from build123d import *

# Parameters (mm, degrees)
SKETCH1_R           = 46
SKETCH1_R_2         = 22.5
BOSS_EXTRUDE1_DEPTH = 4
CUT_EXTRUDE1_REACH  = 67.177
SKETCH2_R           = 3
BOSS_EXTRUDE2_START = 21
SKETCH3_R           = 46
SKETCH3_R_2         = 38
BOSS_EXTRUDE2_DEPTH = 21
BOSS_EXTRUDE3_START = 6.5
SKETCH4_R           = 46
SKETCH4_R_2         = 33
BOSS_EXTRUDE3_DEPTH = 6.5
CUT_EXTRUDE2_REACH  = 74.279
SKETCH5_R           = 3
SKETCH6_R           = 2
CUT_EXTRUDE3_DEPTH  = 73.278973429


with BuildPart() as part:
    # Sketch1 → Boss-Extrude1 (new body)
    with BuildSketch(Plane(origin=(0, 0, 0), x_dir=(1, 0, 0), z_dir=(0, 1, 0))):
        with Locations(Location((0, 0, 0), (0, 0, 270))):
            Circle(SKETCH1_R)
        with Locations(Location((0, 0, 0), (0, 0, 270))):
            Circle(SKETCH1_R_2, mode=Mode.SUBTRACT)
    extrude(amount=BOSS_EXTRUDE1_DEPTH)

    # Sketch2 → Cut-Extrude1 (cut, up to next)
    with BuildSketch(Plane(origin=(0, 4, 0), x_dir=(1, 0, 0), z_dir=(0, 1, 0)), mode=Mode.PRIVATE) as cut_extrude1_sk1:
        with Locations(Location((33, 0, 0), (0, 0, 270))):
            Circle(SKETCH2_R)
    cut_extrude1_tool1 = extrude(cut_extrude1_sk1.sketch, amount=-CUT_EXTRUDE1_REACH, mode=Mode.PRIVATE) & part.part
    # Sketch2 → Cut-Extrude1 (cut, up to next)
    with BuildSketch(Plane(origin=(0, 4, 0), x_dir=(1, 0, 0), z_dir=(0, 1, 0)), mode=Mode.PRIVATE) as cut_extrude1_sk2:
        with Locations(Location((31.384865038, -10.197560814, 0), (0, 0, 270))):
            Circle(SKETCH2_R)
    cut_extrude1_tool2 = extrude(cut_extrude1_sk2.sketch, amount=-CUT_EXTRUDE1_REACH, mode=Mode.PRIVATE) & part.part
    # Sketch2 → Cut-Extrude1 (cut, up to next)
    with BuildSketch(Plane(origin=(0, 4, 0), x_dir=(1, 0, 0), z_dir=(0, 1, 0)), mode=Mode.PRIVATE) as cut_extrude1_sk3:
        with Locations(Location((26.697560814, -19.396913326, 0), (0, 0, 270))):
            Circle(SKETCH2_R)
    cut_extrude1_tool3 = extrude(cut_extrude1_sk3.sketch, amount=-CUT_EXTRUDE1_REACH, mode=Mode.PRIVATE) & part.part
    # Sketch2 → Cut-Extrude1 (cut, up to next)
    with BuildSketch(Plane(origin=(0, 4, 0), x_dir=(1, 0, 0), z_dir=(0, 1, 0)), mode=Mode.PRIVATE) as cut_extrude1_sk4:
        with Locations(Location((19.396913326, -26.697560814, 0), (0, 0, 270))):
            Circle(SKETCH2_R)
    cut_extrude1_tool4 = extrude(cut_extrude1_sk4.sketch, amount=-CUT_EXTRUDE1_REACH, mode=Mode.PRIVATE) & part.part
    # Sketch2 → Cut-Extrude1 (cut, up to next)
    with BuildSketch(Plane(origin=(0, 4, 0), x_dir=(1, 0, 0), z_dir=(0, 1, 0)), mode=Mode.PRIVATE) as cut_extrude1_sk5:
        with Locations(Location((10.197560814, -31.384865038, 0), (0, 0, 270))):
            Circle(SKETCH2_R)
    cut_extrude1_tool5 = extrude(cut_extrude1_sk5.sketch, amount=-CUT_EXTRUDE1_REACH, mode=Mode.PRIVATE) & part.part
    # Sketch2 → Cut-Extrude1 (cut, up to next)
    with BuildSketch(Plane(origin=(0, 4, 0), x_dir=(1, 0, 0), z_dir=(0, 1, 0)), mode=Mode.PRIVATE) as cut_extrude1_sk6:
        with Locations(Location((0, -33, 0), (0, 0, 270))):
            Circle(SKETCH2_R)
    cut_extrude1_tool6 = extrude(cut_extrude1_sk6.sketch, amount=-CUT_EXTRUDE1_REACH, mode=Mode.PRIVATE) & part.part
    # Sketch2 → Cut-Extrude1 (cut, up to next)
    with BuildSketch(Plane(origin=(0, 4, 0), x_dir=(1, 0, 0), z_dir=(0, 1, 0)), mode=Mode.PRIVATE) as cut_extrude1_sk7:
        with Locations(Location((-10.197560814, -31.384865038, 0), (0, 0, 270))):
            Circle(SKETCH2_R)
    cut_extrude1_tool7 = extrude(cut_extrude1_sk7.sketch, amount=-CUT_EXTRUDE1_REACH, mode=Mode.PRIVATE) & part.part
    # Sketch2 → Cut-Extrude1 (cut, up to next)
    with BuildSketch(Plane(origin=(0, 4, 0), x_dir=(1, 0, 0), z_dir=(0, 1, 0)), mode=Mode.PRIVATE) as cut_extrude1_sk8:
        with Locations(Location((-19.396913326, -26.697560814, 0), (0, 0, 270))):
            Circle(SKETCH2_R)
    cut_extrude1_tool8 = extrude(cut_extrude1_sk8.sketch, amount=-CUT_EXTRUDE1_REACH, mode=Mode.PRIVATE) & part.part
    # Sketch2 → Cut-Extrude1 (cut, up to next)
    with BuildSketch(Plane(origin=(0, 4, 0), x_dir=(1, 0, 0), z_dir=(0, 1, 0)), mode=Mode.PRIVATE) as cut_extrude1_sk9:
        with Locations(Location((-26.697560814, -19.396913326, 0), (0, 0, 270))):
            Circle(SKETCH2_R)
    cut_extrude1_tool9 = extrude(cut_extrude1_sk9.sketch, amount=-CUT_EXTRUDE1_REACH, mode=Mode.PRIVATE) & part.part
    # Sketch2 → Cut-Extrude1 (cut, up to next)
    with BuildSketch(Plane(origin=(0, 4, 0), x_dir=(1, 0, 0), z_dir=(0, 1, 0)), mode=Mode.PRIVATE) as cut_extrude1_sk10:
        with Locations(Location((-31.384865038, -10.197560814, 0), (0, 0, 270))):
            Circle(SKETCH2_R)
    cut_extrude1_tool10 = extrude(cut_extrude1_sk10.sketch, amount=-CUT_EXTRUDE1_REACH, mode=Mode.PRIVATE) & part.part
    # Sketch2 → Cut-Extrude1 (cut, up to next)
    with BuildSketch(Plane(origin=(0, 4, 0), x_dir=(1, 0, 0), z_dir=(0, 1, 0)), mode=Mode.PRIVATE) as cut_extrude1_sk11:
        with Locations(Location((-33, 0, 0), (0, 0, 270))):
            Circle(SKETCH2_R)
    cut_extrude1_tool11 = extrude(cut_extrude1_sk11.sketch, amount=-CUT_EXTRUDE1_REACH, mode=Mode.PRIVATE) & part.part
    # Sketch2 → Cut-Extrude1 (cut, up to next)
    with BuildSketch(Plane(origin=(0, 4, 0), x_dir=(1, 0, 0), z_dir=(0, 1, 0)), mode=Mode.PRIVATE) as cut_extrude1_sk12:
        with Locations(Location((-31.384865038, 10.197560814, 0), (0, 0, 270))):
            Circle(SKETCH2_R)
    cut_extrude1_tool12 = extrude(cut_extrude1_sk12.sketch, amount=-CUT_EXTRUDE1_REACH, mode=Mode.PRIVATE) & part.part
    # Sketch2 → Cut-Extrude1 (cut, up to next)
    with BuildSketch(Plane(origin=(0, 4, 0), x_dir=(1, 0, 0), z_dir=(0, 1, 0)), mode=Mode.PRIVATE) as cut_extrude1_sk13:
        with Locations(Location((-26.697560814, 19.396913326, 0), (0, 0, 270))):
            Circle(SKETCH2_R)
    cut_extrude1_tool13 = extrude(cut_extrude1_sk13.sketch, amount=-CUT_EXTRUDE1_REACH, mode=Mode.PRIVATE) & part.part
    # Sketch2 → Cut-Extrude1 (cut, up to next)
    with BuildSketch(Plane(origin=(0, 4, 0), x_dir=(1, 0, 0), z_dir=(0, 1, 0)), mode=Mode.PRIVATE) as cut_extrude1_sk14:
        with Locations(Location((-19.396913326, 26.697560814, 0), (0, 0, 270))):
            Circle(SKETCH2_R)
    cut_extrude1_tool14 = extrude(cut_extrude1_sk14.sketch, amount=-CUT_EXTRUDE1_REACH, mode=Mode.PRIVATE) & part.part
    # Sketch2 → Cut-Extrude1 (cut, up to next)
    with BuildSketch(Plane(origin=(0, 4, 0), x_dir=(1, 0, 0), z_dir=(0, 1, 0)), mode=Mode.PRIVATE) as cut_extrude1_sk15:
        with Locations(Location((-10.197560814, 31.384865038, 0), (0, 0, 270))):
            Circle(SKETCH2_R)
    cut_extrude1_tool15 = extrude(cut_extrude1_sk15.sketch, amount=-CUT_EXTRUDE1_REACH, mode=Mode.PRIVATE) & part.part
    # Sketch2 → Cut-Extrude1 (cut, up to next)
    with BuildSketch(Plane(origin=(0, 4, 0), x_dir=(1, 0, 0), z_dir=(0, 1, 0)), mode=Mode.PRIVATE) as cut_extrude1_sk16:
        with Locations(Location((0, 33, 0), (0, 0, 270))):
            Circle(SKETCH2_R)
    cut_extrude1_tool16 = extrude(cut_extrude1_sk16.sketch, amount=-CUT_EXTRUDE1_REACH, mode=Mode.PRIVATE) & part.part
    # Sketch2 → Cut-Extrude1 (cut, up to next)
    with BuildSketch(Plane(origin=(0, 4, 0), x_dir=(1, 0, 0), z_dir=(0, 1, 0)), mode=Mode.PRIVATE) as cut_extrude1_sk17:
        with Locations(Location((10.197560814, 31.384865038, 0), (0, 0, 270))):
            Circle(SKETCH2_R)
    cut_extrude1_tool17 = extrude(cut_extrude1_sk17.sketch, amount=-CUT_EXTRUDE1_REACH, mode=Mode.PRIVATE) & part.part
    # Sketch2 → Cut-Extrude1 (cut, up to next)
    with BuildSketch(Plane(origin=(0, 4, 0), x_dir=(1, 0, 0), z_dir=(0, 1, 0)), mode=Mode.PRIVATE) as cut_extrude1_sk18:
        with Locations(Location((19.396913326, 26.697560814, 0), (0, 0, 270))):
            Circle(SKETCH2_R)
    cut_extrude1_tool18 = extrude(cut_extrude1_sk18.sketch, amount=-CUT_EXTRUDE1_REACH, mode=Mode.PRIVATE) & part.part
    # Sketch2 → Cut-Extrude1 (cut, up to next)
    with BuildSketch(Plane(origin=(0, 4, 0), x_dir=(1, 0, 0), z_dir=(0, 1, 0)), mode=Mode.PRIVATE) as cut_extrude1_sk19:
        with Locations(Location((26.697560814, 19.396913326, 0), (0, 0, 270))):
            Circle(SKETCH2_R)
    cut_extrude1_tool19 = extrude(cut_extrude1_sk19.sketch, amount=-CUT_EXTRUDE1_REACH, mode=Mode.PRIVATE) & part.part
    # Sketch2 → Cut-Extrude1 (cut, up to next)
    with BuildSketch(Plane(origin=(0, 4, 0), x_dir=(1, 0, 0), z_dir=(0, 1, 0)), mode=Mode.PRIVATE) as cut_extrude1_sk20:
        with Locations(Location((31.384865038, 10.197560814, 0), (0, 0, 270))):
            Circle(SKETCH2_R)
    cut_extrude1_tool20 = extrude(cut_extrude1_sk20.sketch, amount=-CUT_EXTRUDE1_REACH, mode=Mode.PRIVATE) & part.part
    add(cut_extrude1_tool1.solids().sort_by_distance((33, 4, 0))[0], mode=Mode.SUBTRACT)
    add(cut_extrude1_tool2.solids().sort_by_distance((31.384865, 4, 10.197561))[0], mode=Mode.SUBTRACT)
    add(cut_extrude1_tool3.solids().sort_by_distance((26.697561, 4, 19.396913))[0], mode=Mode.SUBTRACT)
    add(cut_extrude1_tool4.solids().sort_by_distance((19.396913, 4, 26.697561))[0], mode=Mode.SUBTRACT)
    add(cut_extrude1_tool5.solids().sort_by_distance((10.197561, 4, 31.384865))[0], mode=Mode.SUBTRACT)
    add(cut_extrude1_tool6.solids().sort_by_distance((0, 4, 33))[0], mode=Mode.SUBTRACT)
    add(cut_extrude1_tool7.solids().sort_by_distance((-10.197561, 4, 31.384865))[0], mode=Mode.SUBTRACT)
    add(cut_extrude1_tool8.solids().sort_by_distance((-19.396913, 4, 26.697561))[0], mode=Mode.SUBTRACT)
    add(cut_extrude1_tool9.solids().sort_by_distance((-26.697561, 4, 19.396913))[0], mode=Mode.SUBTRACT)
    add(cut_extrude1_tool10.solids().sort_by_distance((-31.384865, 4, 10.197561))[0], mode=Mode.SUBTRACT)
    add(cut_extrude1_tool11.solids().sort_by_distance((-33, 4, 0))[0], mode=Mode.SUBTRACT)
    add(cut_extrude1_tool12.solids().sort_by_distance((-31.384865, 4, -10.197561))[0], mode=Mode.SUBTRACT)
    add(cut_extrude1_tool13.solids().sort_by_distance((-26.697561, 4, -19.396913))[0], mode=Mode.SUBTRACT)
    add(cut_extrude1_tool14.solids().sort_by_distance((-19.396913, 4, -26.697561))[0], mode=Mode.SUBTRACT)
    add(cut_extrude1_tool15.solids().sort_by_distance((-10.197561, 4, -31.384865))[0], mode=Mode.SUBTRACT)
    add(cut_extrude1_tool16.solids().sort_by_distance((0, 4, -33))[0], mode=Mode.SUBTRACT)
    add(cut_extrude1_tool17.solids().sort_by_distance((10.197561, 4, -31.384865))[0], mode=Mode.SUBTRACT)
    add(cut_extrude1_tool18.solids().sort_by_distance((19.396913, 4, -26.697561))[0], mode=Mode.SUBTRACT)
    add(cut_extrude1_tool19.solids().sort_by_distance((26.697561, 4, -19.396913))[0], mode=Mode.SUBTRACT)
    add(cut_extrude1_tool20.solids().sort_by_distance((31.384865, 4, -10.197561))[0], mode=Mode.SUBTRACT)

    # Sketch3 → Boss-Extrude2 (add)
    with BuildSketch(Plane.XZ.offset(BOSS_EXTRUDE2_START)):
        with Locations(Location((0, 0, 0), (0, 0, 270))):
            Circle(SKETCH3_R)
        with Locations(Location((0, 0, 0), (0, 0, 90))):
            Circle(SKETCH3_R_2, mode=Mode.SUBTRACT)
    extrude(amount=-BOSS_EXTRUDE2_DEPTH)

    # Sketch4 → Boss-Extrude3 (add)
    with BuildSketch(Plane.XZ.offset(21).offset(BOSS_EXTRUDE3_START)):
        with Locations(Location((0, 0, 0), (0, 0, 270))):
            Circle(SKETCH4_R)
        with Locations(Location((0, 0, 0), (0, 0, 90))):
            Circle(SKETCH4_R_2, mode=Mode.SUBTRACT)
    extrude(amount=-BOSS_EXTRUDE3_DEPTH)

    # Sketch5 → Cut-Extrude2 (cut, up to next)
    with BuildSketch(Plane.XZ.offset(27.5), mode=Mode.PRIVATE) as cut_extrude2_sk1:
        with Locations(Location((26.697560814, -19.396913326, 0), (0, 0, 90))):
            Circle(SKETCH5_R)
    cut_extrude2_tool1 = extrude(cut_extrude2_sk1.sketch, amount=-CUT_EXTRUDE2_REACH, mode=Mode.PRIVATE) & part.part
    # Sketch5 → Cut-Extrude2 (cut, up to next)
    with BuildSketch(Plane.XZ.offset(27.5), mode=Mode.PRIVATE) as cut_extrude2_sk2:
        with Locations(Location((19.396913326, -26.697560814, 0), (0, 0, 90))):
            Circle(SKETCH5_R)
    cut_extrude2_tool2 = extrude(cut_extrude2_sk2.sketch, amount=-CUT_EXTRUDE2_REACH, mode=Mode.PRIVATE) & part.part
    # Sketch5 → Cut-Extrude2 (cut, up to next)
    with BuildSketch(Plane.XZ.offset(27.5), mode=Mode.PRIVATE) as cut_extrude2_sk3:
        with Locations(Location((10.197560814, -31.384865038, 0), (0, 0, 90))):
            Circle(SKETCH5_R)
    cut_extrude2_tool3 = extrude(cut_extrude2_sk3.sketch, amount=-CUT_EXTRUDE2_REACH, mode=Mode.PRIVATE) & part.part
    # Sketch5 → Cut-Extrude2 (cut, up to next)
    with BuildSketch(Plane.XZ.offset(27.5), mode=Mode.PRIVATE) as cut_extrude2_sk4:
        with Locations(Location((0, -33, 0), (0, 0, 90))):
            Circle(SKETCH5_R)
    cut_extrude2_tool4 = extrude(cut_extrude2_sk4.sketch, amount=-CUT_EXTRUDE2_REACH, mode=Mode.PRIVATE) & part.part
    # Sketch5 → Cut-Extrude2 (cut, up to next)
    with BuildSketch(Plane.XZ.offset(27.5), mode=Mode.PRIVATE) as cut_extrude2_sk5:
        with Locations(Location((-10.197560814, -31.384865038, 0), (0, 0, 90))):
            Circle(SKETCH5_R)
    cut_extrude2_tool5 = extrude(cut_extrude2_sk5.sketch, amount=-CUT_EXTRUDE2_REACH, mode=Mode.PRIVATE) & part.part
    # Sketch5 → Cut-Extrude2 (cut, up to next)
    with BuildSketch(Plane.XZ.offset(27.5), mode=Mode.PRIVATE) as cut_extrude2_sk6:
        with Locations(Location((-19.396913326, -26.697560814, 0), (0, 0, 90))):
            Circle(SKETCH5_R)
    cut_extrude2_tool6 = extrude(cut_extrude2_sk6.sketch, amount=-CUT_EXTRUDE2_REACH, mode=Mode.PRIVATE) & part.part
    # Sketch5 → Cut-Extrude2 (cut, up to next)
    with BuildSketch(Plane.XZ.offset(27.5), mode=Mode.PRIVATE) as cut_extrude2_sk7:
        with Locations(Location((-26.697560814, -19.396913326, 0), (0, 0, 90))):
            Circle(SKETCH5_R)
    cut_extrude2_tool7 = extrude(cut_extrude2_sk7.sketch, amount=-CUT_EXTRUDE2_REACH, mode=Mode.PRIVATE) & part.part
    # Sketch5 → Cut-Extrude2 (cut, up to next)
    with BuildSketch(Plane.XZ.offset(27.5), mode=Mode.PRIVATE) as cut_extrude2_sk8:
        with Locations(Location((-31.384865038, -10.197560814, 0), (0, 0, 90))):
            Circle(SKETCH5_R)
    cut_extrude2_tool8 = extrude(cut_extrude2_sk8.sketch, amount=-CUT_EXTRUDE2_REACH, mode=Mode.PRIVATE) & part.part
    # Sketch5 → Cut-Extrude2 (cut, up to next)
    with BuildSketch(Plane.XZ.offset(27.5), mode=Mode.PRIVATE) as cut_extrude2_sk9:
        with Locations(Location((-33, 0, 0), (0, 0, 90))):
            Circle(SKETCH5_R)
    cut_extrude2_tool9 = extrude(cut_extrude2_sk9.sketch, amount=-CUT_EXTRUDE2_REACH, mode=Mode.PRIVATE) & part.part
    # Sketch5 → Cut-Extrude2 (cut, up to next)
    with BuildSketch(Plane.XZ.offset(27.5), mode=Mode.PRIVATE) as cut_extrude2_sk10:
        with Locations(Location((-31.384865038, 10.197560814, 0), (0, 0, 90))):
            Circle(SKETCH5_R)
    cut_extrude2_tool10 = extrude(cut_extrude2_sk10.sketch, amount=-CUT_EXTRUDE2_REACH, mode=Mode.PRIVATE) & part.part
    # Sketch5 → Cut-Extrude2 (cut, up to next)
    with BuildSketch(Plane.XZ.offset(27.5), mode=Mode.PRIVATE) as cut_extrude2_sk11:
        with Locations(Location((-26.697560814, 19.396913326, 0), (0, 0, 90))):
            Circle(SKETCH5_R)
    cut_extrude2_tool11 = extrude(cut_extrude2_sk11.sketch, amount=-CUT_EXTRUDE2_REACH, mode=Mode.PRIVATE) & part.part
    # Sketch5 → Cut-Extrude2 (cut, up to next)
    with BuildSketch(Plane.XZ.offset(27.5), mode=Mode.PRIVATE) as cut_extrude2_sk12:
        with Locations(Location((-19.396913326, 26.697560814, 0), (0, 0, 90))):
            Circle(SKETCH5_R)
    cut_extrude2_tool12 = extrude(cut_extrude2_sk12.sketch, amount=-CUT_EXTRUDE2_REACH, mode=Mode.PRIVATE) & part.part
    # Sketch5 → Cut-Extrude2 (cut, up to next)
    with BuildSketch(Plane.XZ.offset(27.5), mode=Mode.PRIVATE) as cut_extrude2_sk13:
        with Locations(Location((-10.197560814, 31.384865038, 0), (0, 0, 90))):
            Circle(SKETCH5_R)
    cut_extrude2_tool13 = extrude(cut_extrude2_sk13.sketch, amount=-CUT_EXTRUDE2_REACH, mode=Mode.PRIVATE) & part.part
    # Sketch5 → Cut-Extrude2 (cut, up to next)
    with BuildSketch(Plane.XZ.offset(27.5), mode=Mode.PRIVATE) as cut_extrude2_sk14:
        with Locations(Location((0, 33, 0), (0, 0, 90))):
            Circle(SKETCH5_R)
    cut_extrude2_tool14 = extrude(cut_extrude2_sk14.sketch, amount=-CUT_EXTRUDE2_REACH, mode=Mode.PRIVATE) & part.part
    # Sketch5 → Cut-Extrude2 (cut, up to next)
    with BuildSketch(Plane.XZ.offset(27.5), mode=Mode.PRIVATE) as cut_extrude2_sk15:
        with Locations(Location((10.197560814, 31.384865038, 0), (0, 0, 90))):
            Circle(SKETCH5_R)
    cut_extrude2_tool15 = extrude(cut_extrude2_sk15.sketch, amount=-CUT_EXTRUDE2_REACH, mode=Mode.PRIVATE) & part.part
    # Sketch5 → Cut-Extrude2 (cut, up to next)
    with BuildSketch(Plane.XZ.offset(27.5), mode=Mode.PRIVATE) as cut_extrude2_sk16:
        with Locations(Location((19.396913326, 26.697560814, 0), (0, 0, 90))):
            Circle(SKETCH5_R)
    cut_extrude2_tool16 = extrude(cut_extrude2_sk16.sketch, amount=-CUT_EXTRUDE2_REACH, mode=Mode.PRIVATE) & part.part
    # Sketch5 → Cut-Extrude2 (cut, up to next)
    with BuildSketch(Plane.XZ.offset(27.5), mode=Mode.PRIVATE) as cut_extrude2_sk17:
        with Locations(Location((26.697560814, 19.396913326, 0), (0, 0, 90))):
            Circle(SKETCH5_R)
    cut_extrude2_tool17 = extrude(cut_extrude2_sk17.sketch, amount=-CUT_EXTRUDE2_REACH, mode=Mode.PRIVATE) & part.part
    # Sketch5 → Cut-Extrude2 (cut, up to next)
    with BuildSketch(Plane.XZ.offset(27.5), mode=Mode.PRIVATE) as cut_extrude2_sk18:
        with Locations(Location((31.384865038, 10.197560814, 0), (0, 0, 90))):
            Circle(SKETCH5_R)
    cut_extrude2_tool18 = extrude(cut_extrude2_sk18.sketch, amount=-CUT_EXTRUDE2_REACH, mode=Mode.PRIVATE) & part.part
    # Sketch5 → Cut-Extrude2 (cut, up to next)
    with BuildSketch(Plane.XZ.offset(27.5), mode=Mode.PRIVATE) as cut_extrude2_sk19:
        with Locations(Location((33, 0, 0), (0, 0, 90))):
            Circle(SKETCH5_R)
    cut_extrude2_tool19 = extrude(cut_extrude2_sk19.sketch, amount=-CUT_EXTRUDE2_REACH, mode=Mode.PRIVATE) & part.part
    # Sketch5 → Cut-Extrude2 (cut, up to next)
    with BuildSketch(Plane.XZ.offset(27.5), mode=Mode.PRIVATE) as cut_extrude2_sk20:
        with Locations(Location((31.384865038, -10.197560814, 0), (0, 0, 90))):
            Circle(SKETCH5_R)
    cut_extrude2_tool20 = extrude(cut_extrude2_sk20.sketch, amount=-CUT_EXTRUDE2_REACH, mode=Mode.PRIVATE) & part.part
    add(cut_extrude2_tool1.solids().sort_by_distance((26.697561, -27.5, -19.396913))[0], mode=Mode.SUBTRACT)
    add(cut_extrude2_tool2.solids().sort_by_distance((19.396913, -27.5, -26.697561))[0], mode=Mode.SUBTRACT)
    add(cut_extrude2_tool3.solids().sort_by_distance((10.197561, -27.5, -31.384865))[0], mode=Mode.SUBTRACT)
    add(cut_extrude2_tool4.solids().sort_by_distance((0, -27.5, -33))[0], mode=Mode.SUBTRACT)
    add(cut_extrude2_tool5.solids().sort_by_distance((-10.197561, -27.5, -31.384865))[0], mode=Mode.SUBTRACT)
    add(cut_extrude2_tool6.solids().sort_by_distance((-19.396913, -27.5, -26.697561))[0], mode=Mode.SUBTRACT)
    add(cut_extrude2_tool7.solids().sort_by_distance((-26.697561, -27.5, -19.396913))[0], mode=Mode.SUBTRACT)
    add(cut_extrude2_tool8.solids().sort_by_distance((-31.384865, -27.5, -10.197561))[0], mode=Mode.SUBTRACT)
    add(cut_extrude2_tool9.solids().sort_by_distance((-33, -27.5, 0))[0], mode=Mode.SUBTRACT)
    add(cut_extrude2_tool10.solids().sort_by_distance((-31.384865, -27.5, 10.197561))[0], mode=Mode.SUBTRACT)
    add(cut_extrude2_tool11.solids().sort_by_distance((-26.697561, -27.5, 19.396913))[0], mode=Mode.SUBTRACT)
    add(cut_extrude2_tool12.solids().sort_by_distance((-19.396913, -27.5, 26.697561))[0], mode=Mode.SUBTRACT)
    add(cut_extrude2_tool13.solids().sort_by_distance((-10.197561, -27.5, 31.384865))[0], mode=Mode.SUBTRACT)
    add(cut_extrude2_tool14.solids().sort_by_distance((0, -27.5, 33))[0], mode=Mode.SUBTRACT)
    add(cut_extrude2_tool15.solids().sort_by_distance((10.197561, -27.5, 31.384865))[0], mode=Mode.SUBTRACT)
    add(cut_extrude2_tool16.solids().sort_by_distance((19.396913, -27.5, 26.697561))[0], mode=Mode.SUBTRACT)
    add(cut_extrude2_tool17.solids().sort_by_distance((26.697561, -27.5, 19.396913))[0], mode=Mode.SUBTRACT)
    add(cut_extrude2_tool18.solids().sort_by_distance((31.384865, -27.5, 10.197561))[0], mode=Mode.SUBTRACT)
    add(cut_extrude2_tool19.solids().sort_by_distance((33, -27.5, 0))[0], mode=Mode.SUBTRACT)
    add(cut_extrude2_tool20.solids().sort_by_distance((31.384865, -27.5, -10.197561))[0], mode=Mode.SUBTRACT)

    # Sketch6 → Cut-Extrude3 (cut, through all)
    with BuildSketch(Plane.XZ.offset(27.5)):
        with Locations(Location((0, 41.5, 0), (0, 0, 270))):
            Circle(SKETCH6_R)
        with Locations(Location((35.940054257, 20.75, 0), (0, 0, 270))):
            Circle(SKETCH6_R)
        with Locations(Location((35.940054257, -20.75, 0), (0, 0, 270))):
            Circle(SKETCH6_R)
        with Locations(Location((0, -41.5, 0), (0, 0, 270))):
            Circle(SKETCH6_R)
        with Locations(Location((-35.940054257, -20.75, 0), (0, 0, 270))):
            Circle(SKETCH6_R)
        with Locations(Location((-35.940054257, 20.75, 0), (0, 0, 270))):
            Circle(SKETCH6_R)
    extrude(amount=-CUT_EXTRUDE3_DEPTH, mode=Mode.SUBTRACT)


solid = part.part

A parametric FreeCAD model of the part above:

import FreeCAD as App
import Part
import Sketcher
Q = App.Units.Quantity

doc = App.newDocument("Part")
body = doc.addObject("PartDesign::Body", "Body")

# Sketch on XZ plane
sketch1 = body.newObject("Sketcher::SketchObject", "Sketch")
sketch1.AttachmentSupport = (doc.getObject("XZ_Plane"), [""])
sketch1.MapMode = "FlatFace"
sketch1.addGeometry(Part.Circle(App.Vector(0, 0, 0), App.Vector(0, 0, 1), 46), False)
sketch1.addGeometry(Part.Circle(App.Vector(0, 0, 0), App.Vector(0, 0, 1), 22), False)
sketch1.addConstraint(Sketcher.Constraint("Coincident", 0, 3, -1, 1))
sketch1.addConstraint(Sketcher.Constraint("Coincident", 1, 3, -1, 1))
sketch1.addConstraint(Sketcher.Constraint("Diameter", 0, Q("92 mm")))
sketch1.addConstraint(Sketcher.Constraint("Diameter", 1, Q("45 mm")))
pad1 = body.newObject("PartDesign::Pad", "Pad")
pad1.Profile = sketch1
pad1.Length = 4
pad1.Reversed = True

# Sketch on XZ plane
sketch2 = body.newObject("Sketcher::SketchObject", "Sketch001")
sketch2.AttachmentSupport = (doc.getObject("XZ_Plane"), [""])
sketch2.MapMode = "FlatFace"
sketch2.AttachmentOffset = App.Placement(App.Vector(0, 0, -4), App.Rotation())
sketch2.addGeometry(Part.Circle(App.Vector(33, 0, 0), App.Vector(0, 0, 1), 3), False)
sketch2.addConstraint(Sketcher.Constraint("PointOnObject", 0, 3, -1))
sketch2.addConstraint(Sketcher.Constraint("Diameter", 0, Q("6 mm")))
sketch2.addConstraint(Sketcher.Constraint("DistanceX", -1, 1, 0, 3, Q("33 mm")))
pocket1 = body.newObject("PartDesign::Pocket", "Pocket")
pocket1.Profile = sketch2
pocket1.Type = "UpToFirst"
pocket1.Reversed = True

# Sketch on XZ plane
sketch3 = body.newObject("Sketcher::SketchObject", "Sketch002")
sketch3.AttachmentSupport = (doc.getObject("XZ_Plane"), [""])
sketch3.MapMode = "FlatFace"
sketch3.AttachmentOffset = App.Placement(App.Vector(0, 0, -4), App.Rotation())
sketch3.addGeometry(Part.Circle(App.Vector(31.4, 10.2, 0), App.Vector(0, 0, 1), 3), False)
sketch3.addConstraint(Sketcher.Constraint("Diameter", 0, Q("6 mm")))
sketch3.addConstraint(Sketcher.Constraint("DistanceY", -1, 1, 0, 3, Q("10.197561 mm")))
sketch3.addConstraint(Sketcher.Constraint("DistanceX", -1, 1, 0, 3, Q("31.384865 mm")))
pocket2 = body.newObject("PartDesign::Pocket", "Pocket001")
pocket2.Profile = sketch3
pocket2.Type = "UpToFirst"
pocket2.Reversed = True

# Sketch on XZ plane
sketch4 = body.newObject("Sketcher::SketchObject", "Sketch003")
sketch4.AttachmentSupport = (doc.getObject("XZ_Plane"), [""])
sketch4.MapMode = "FlatFace"
sketch4.AttachmentOffset = App.Placement(App.Vector(0, 0, -4), App.Rotation())
sketch4.addGeometry(Part.Circle(App.Vector(26.7, 19.4, 0), App.Vector(0, 0, 1), 3), False)
sketch4.addConstraint(Sketcher.Constraint("Diameter", 0, Q("6 mm")))
sketch4.addConstraint(Sketcher.Constraint("DistanceX", -1, 1, 0, 3, Q("26.697561 mm")))
sketch4.addConstraint(Sketcher.Constraint("DistanceY", -1, 1, 0, 3, Q("19.396913 mm")))
pocket3 = body.newObject("PartDesign::Pocket", "Pocket002")
pocket3.Profile = sketch4
pocket3.Type = "UpToFirst"
pocket3.Reversed = True

# Sketch on XZ plane
sketch5 = body.newObject("Sketcher::SketchObject", "Sketch004")
sketch5.AttachmentSupport = (doc.getObject("XZ_Plane"), [""])
sketch5.MapMode = "FlatFace"
sketch5.AttachmentOffset = App.Placement(App.Vector(0, 0, -4), App.Rotation())
sketch5.addGeometry(Part.Circle(App.Vector(19.4, 26.7, 0), App.Vector(0, 0, 1), 3), False)
sketch5.addConstraint(Sketcher.Constraint("Diameter", 0, Q("6 mm")))
sketch5.addConstraint(Sketcher.Constraint("DistanceY", -1, 1, 0, 3, Q("26.697561 mm")))
sketch5.addConstraint(Sketcher.Constraint("DistanceX", -1, 1, 0, 3, Q("19.396913 mm")))
pocket4 = body.newObject("PartDesign::Pocket", "Pocket003")
pocket4.Profile = sketch5
pocket4.Type = "UpToFirst"
pocket4.Reversed = True

# Sketch on XZ plane
sketch6 = body.newObject("Sketcher::SketchObject", "Sketch005")
sketch6.AttachmentSupport = (doc.getObject("XZ_Plane"), [""])
sketch6.MapMode = "FlatFace"
sketch6.AttachmentOffset = App.Placement(App.Vector(0, 0, -4), App.Rotation())
sketch6.addGeometry(Part.Circle(App.Vector(10.2, 31.4, 0), App.Vector(0, 0, 1), 3), False)
sketch6.addConstraint(Sketcher.Constraint("Diameter", 0, Q("6 mm")))
sketch6.addConstraint(Sketcher.Constraint("DistanceX", -1, 1, 0, 3, Q("10.197561 mm")))
sketch6.addConstraint(Sketcher.Constraint("DistanceY", -1, 1, 0, 3, Q("31.384865 mm")))
pocket5 = body.newObject("PartDesign::Pocket", "Pocket004")
pocket5.Profile = sketch6
pocket5.Type = "UpToFirst"
pocket5.Reversed = True

# Sketch on XZ plane
sketch7 = body.newObject("Sketcher::SketchObject", "Sketch006")
sketch7.AttachmentSupport = (doc.getObject("XZ_Plane"), [""])
sketch7.MapMode = "FlatFace"
sketch7.AttachmentOffset = App.Placement(App.Vector(0, 0, -4), App.Rotation())
sketch7.addGeometry(Part.Circle(App.Vector(0, 33, 0), App.Vector(0, 0, 1), 3), False)
sketch7.addConstraint(Sketcher.Constraint("PointOnObject", 0, 3, -2))
sketch7.addConstraint(Sketcher.Constraint("Diameter", 0, Q("6 mm")))
sketch7.addConstraint(Sketcher.Constraint("DistanceY", -1, 1, 0, 3, Q("33 mm")))
pocket6 = body.newObject("PartDesign::Pocket", "Pocket005")
pocket6.Profile = sketch7
pocket6.Type = "UpToFirst"
pocket6.Reversed = True

# Sketch on XZ plane
sketch8 = body.newObject("Sketcher::SketchObject", "Sketch007")
sketch8.AttachmentSupport = (doc.getObject("XZ_Plane"), [""])
sketch8.MapMode = "FlatFace"
sketch8.AttachmentOffset = App.Placement(App.Vector(0, 0, -4), App.Rotation())
sketch8.addGeometry(Part.Circle(App.Vector(-10.2, 31.4, 0), App.Vector(0, 0, 1), 3), False)
sketch8.addConstraint(Sketcher.Constraint("Diameter", 0, Q("6 mm")))
sketch8.addConstraint(Sketcher.Constraint("DistanceX", 0, 3, -1, 1, Q("10.197561 mm")))
sketch8.addConstraint(Sketcher.Constraint("DistanceY", -1, 1, 0, 3, Q("31.384865 mm")))
pocket7 = body.newObject("PartDesign::Pocket", "Pocket006")
pocket7.Profile = sketch8
pocket7.Type = "UpToFirst"
pocket7.Reversed = True

# Sketch on XZ plane
sketch9 = body.newObject("Sketcher::SketchObject", "Sketch008")
sketch9.AttachmentSupport = (doc.getObject("XZ_Plane"), [""])
sketch9.MapMode = "FlatFace"
sketch9.AttachmentOffset = App.Placement(App.Vector(0, 0, -4), App.Rotation())
sketch9.addGeometry(Part.Circle(App.Vector(-19.4, 26.7, 0), App.Vector(0, 0, 1), 3), False)
sketch9.addConstraint(Sketcher.Constraint("Diameter", 0, Q("6 mm")))
sketch9.addConstraint(Sketcher.Constraint("DistanceY", -1, 1, 0, 3, Q("26.697561 mm")))
sketch9.addConstraint(Sketcher.Constraint("DistanceX", 0, 3, -1, 1, Q("19.396913 mm")))
pocket8 = body.newObject("PartDesign::Pocket", "Pocket007")
pocket8.Profile = sketch9
pocket8.Type = "UpToFirst"
pocket8.Reversed = True

# Sketch on XZ plane
sketch10 = body.newObject("Sketcher::SketchObject", "Sketch009")
sketch10.AttachmentSupport = (doc.getObject("XZ_Plane"), [""])
sketch10.MapMode = "FlatFace"
sketch10.AttachmentOffset = App.Placement(App.Vector(0, 0, -4), App.Rotation())
sketch10.addGeometry(Part.Circle(App.Vector(-26.7, 19.4, 0), App.Vector(0, 0, 1), 3), False)
sketch10.addConstraint(Sketcher.Constraint("Diameter", 0, Q("6 mm")))
sketch10.addConstraint(Sketcher.Constraint("DistanceX", 0, 3, -1, 1, Q("26.697561 mm")))
sketch10.addConstraint(Sketcher.Constraint("DistanceY", -1, 1, 0, 3, Q("19.396913 mm")))
pocket9 = body.newObject("PartDesign::Pocket", "Pocket008")
pocket9.Profile = sketch10
pocket9.Type = "UpToFirst"
pocket9.Reversed = True

# Sketch on XZ plane
sketch11 = body.newObject("Sketcher::SketchObject", "Sketch010")
sketch11.AttachmentSupport = (doc.getObject("XZ_Plane"), [""])
sketch11.MapMode = "FlatFace"
sketch11.AttachmentOffset = App.Placement(App.Vector(0, 0, -4), App.Rotation())
sketch11.addGeometry(Part.Circle(App.Vector(-31.4, 10.2, 0), App.Vector(0, 0, 1), 3), False)
sketch11.addConstraint(Sketcher.Constraint("Diameter", 0, Q("6 mm")))
sketch11.addConstraint(Sketcher.Constraint("DistanceY", -1, 1, 0, 3, Q("10.197561 mm")))
sketch11.addConstraint(Sketcher.Constraint("DistanceX", 0, 3, -1, 1, Q("31.384865 mm")))
pocket10 = body.newObject("PartDesign::Pocket", "Pocket009")
pocket10.Profile = sketch11
pocket10.Type = "UpToFirst"
pocket10.Reversed = True

# Sketch on XZ plane
sketch12 = body.newObject("Sketcher::SketchObject", "Sketch011")
sketch12.AttachmentSupport = (doc.getObject("XZ_Plane"), [""])
sketch12.MapMode = "FlatFace"
sketch12.AttachmentOffset = App.Placement(App.Vector(0, 0, -4), App.Rotation())
sketch12.addGeometry(Part.Circle(App.Vector(-33, 0, 0), App.Vector(0, 0, 1), 3), False)
sketch12.addConstraint(Sketcher.Constraint("PointOnObject", 0, 3, -1))
sketch12.addConstraint(Sketcher.Constraint("Diameter", 0, Q("6 mm")))
sketch12.addConstraint(Sketcher.Constraint("DistanceX", 0, 3, -1, 1, Q("33 mm")))
pocket11 = body.newObject("PartDesign::Pocket", "Pocket010")
pocket11.Profile = sketch12
pocket11.Type = "UpToFirst"
pocket11.Reversed = True

# Sketch on XZ plane
sketch13 = body.newObject("Sketcher::SketchObject", "Sketch012")
sketch13.AttachmentSupport = (doc.getObject("XZ_Plane"), [""])
sketch13.MapMode = "FlatFace"
sketch13.AttachmentOffset = App.Placement(App.Vector(0, 0, -4), App.Rotation())
sketch13.addGeometry(Part.Circle(App.Vector(-31.4, -10.2, 0), App.Vector(0, 0, 1), 3), False)
sketch13.addConstraint(Sketcher.Constraint("Diameter", 0, Q("6 mm")))
sketch13.addConstraint(Sketcher.Constraint("DistanceY", 0, 3, -1, 1, Q("10.197561 mm")))
sketch13.addConstraint(Sketcher.Constraint("DistanceX", 0, 3, -1, 1, Q("31.384865 mm")))
pocket12 = body.newObject("PartDesign::Pocket", "Pocket011")
pocket12.Profile = sketch13
pocket12.Type = "UpToFirst"
pocket12.Reversed = True

# Sketch on XZ plane
sketch14 = body.newObject("Sketcher::SketchObject", "Sketch013")
sketch14.AttachmentSupport = (doc.getObject("XZ_Plane"), [""])
sketch14.MapMode = "FlatFace"
sketch14.AttachmentOffset = App.Placement(App.Vector(0, 0, -4), App.Rotation())
sketch14.addGeometry(Part.Circle(App.Vector(-26.7, -19.4, 0), App.Vector(0, 0, 1), 3), False)
sketch14.addConstraint(Sketcher.Constraint("Diameter", 0, Q("6 mm")))
sketch14.addConstraint(Sketcher.Constraint("DistanceX", 0, 3, -1, 1, Q("26.697561 mm")))
sketch14.addConstraint(Sketcher.Constraint("DistanceY", 0, 3, -1, 1, Q("19.396913 mm")))
pocket13 = body.newObject("PartDesign::Pocket", "Pocket012")
pocket13.Profile = sketch14
pocket13.Type = "UpToFirst"
pocket13.Reversed = True

# Sketch on XZ plane
sketch15 = body.newObject("Sketcher::SketchObject", "Sketch014")
sketch15.AttachmentSupport = (doc.getObject("XZ_Plane"), [""])
sketch15.MapMode = "FlatFace"
sketch15.AttachmentOffset = App.Placement(App.Vector(0, 0, -4), App.Rotation())
sketch15.addGeometry(Part.Circle(App.Vector(-19.4, -26.7, 0), App.Vector(0, 0, 1), 3), False)
sketch15.addConstraint(Sketcher.Constraint("Diameter", 0, Q("6 mm")))
sketch15.addConstraint(Sketcher.Constraint("DistanceY", 0, 3, -1, 1, Q("26.697561 mm")))
sketch15.addConstraint(Sketcher.Constraint("DistanceX", 0, 3, -1, 1, Q("19.396913 mm")))
pocket14 = body.newObject("PartDesign::Pocket", "Pocket013")
pocket14.Profile = sketch15
pocket14.Type = "UpToFirst"
pocket14.Reversed = True

# Sketch on XZ plane
sketch16 = body.newObject("Sketcher::SketchObject", "Sketch015")
sketch16.AttachmentSupport = (doc.getObject("XZ_Plane"), [""])
sketch16.MapMode = "FlatFace"
sketch16.AttachmentOffset = App.Placement(App.Vector(0, 0, -4), App.Rotation())
sketch16.addGeometry(Part.Circle(App.Vector(-10.2, -31.4, 0), App.Vector(0, 0, 1), 3), False)
sketch16.addConstraint(Sketcher.Constraint("Diameter", 0, Q("6 mm")))
sketch16.addConstraint(Sketcher.Constraint("DistanceX", 0, 3, -1, 1, Q("10.197561 mm")))
sketch16.addConstraint(Sketcher.Constraint("DistanceY", 0, 3, -1, 1, Q("31.384865 mm")))
pocket15 = body.newObject("PartDesign::Pocket", "Pocket014")
pocket15.Profile = sketch16
pocket15.Type = "UpToFirst"
pocket15.Reversed = True

# Sketch on XZ plane
sketch17 = body.newObject("Sketcher::SketchObject", "Sketch016")
sketch17.AttachmentSupport = (doc.getObject("XZ_Plane"), [""])
sketch17.MapMode = "FlatFace"
sketch17.AttachmentOffset = App.Placement(App.Vector(0, 0, -4), App.Rotation())
sketch17.addGeometry(Part.Circle(App.Vector(0, -33, 0), App.Vector(0, 0, 1), 3), False)
sketch17.addConstraint(Sketcher.Constraint("PointOnObject", 0, 3, -2))
sketch17.addConstraint(Sketcher.Constraint("Diameter", 0, Q("6 mm")))
sketch17.addConstraint(Sketcher.Constraint("DistanceY", 0, 3, -1, 1, Q("33 mm")))
pocket16 = body.newObject("PartDesign::Pocket", "Pocket015")
pocket16.Profile = sketch17
pocket16.Type = "UpToFirst"
pocket16.Reversed = True

# Sketch on XZ plane
sketch18 = body.newObject("Sketcher::SketchObject", "Sketch017")
sketch18.AttachmentSupport = (doc.getObject("XZ_Plane"), [""])
sketch18.MapMode = "FlatFace"
sketch18.AttachmentOffset = App.Placement(App.Vector(0, 0, -4), App.Rotation())
sketch18.addGeometry(Part.Circle(App.Vector(10.2, -31.4, 0), App.Vector(0, 0, 1), 3), False)
sketch18.addConstraint(Sketcher.Constraint("Diameter", 0, Q("6 mm")))
sketch18.addConstraint(Sketcher.Constraint("DistanceX", -1, 1, 0, 3, Q("10.197561 mm")))
sketch18.addConstraint(Sketcher.Constraint("DistanceY", 0, 3, -1, 1, Q("31.384865 mm")))
pocket17 = body.newObject("PartDesign::Pocket", "Pocket016")
pocket17.Profile = sketch18
pocket17.Type = "UpToFirst"
pocket17.Reversed = True

# Sketch on XZ plane
sketch19 = body.newObject("Sketcher::SketchObject", "Sketch018")
sketch19.AttachmentSupport = (doc.getObject("XZ_Plane"), [""])
sketch19.MapMode = "FlatFace"
sketch19.AttachmentOffset = App.Placement(App.Vector(0, 0, -4), App.Rotation())
sketch19.addGeometry(Part.Circle(App.Vector(19.4, -26.7, 0), App.Vector(0, 0, 1), 3), False)
sketch19.addConstraint(Sketcher.Constraint("Diameter", 0, Q("6 mm")))
sketch19.addConstraint(Sketcher.Constraint("DistanceY", 0, 3, -1, 1, Q("26.697561 mm")))
sketch19.addConstraint(Sketcher.Constraint("DistanceX", -1, 1, 0, 3, Q("19.396913 mm")))
pocket18 = body.newObject("PartDesign::Pocket", "Pocket017")
pocket18.Profile = sketch19
pocket18.Type = "UpToFirst"
pocket18.Reversed = True

# Sketch on XZ plane
sketch20 = body.newObject("Sketcher::SketchObject", "Sketch019")
sketch20.AttachmentSupport = (doc.getObject("XZ_Plane"), [""])
sketch20.MapMode = "FlatFace"
sketch20.AttachmentOffset = App.Placement(App.Vector(0, 0, -4), App.Rotation())
sketch20.addGeometry(Part.Circle(App.Vector(26.7, -19.4, 0), App.Vector(0, 0, 1), 3), False)
sketch20.addConstraint(Sketcher.Constraint("Diameter", 0, Q("6 mm")))
sketch20.addConstraint(Sketcher.Constraint("DistanceX", -1, 1, 0, 3, Q("26.697561 mm")))
sketch20.addConstraint(Sketcher.Constraint("DistanceY", 0, 3, -1, 1, Q("19.396913 mm")))
pocket19 = body.newObject("PartDesign::Pocket", "Pocket018")
pocket19.Profile = sketch20
pocket19.Type = "UpToFirst"
pocket19.Reversed = True

# Sketch on XZ plane
sketch21 = body.newObject("Sketcher::SketchObject", "Sketch020")
sketch21.AttachmentSupport = (doc.getObject("XZ_Plane"), [""])
sketch21.MapMode = "FlatFace"
sketch21.AttachmentOffset = App.Placement(App.Vector(0, 0, -4), App.Rotation())
sketch21.addGeometry(Part.Circle(App.Vector(31.4, -10.2, 0), App.Vector(0, 0, 1), 3), False)
sketch21.addConstraint(Sketcher.Constraint("Diameter", 0, Q("6 mm")))
sketch21.addConstraint(Sketcher.Constraint("DistanceY", 0, 3, -1, 1, Q("10.197561 mm")))
sketch21.addConstraint(Sketcher.Constraint("DistanceX", -1, 1, 0, 3, Q("31.384865 mm")))
pocket20 = body.newObject("PartDesign::Pocket", "Pocket019")
pocket20.Profile = sketch21
pocket20.Type = "UpToFirst"
pocket20.Reversed = True

# Sketch on XZ plane
sketch22 = body.newObject("Sketcher::SketchObject", "Sketch021")
sketch22.AttachmentSupport = (doc.getObject("XZ_Plane"), [""])
sketch22.MapMode = "FlatFace"
sketch22.AttachmentOffset = App.Placement(App.Vector(0, 0, 21), App.Rotation())
sketch22.addGeometry(Part.Circle(App.Vector(0, 0, 0), App.Vector(0, 0, 1), 46), False)
sketch22.addGeometry(Part.Circle(App.Vector(0, 0, 0), App.Vector(0, 0, 1), 38), False)
sketch22.addConstraint(Sketcher.Constraint("Coincident", 0, 3, -1, 1))
sketch22.addConstraint(Sketcher.Constraint("Coincident", 1, 3, -1, 1))
sketch22.addConstraint(Sketcher.Constraint("Diameter", 0, Q("92 mm")))
sketch22.addConstraint(Sketcher.Constraint("Diameter", 1, Q("76 mm")))
pad2 = body.newObject("PartDesign::Pad", "Pad001")
pad2.Profile = sketch22
pad2.Length = 21
pad2.Reversed = True

# Sketch on XZ plane
sketch23 = body.newObject("Sketcher::SketchObject", "Sketch022")
sketch23.AttachmentSupport = (doc.getObject("XZ_Plane"), [""])
sketch23.MapMode = "FlatFace"
sketch23.AttachmentOffset = App.Placement(App.Vector(0, 0, 27.5), App.Rotation())
sketch23.addGeometry(Part.Circle(App.Vector(0, 0, 0), App.Vector(0, 0, 1), 46), False)
sketch23.addGeometry(Part.Circle(App.Vector(0, 0, 0), App.Vector(0, 0, 1), 33), False)
sketch23.addConstraint(Sketcher.Constraint("Coincident", 0, 3, -1, 1))
sketch23.addConstraint(Sketcher.Constraint("Coincident", 1, 3, -1, 1))
sketch23.addConstraint(Sketcher.Constraint("Diameter", 0, Q("92 mm")))
sketch23.addConstraint(Sketcher.Constraint("Diameter", 1, Q("66 mm")))
pad3 = body.newObject("PartDesign::Pad", "Pad002")
pad3.Profile = sketch23
pad3.Length = 6.5
pad3.Reversed = True

# Sketch on XZ plane
sketch24 = body.newObject("Sketcher::SketchObject", "Sketch023")
sketch24.AttachmentSupport = (doc.getObject("XZ_Plane"), [""])
sketch24.MapMode = "FlatFace"
sketch24.AttachmentOffset = App.Placement(App.Vector(0, 0, 27.5), App.Rotation())
sketch24.addGeometry(Part.Circle(App.Vector(26.7, -19.4, 0), App.Vector(0, 0, 1), 3), False)
sketch24.addConstraint(Sketcher.Constraint("Diameter", 0, Q("6 mm")))
sketch24.addConstraint(Sketcher.Constraint("DistanceX", -1, 1, 0, 3, Q("26.697561 mm")))
sketch24.addConstraint(Sketcher.Constraint("DistanceY", 0, 3, -1, 1, Q("19.396913 mm")))
pocket21 = body.newObject("PartDesign::Pocket", "Pocket020")
pocket21.Profile = sketch24
pocket21.Type = "UpToFirst"

# Sketch on XZ plane
sketch25 = body.newObject("Sketcher::SketchObject", "Sketch024")
sketch25.AttachmentSupport = (doc.getObject("XZ_Plane"), [""])
sketch25.MapMode = "FlatFace"
sketch25.AttachmentOffset = App.Placement(App.Vector(0, 0, 27.5), App.Rotation())
sketch25.addGeometry(Part.Circle(App.Vector(19.4, -26.7, 0), App.Vector(0, 0, 1), 3), False)
sketch25.addConstraint(Sketcher.Constraint("Diameter", 0, Q("6 mm")))
sketch25.addConstraint(Sketcher.Constraint("DistanceY", 0, 3, -1, 1, Q("26.697561 mm")))
sketch25.addConstraint(Sketcher.Constraint("DistanceX", -1, 1, 0, 3, Q("19.396913 mm")))
pocket22 = body.newObject("PartDesign::Pocket", "Pocket021")
pocket22.Profile = sketch25
pocket22.Type = "UpToFirst"

# Sketch on XZ plane
sketch26 = body.newObject("Sketcher::SketchObject", "Sketch025")
sketch26.AttachmentSupport = (doc.getObject("XZ_Plane"), [""])
sketch26.MapMode = "FlatFace"
sketch26.AttachmentOffset = App.Placement(App.Vector(0, 0, 27.5), App.Rotation())
sketch26.addGeometry(Part.Circle(App.Vector(10.2, -31.4, 0), App.Vector(0, 0, 1), 3), False)
sketch26.addConstraint(Sketcher.Constraint("Diameter", 0, Q("6 mm")))
sketch26.addConstraint(Sketcher.Constraint("DistanceX", -1, 1, 0, 3, Q("10.197561 mm")))
sketch26.addConstraint(Sketcher.Constraint("DistanceY", 0, 3, -1, 1, Q("31.384865 mm")))
pocket23 = body.newObject("PartDesign::Pocket", "Pocket022")
pocket23.Profile = sketch26
pocket23.Type = "UpToFirst"

# Sketch on XZ plane
sketch27 = body.newObject("Sketcher::SketchObject", "Sketch026")
sketch27.AttachmentSupport = (doc.getObject("XZ_Plane"), [""])
sketch27.MapMode = "FlatFace"
sketch27.AttachmentOffset = App.Placement(App.Vector(0, 0, 27.5), App.Rotation())
sketch27.addGeometry(Part.Circle(App.Vector(0, -33, 0), App.Vector(0, 0, 1), 3), False)
sketch27.addConstraint(Sketcher.Constraint("PointOnObject", 0, 3, -2))
sketch27.addConstraint(Sketcher.Constraint("Diameter", 0, Q("6 mm")))
sketch27.addConstraint(Sketcher.Constraint("DistanceY", 0, 3, -1, 1, Q("33 mm")))
pocket24 = body.newObject("PartDesign::Pocket", "Pocket023")
pocket24.Profile = sketch27
pocket24.Type = "UpToFirst"

# Sketch on XZ plane
sketch28 = body.newObject("Sketcher::SketchObject", "Sketch027")
sketch28.AttachmentSupport = (doc.getObject("XZ_Plane"), [""])
sketch28.MapMode = "FlatFace"
sketch28.AttachmentOffset = App.Placement(App.Vector(0, 0, 27.5), App.Rotation())
sketch28.addGeometry(Part.Circle(App.Vector(-10.2, -31.4, 0), App.Vector(0, 0, 1), 3), False)
sketch28.addConstraint(Sketcher.Constraint("Diameter", 0, Q("6 mm")))
sketch28.addConstraint(Sketcher.Constraint("DistanceX", 0, 3, -1, 1, Q("10.197561 mm")))
sketch28.addConstraint(Sketcher.Constraint("DistanceY", 0, 3, -1, 1, Q("31.384865 mm")))
pocket25 = body.newObject("PartDesign::Pocket", "Pocket024")
pocket25.Profile = sketch28
pocket25.Type = "UpToFirst"

# Sketch on XZ plane
sketch29 = body.newObject("Sketcher::SketchObject", "Sketch028")
sketch29.AttachmentSupport = (doc.getObject("XZ_Plane"), [""])
sketch29.MapMode = "FlatFace"
sketch29.AttachmentOffset = App.Placement(App.Vector(0, 0, 27.5), App.Rotation())
sketch29.addGeometry(Part.Circle(App.Vector(-19.4, -26.7, 0), App.Vector(0, 0, 1), 3), False)
sketch29.addConstraint(Sketcher.Constraint("Diameter", 0, Q("6 mm")))
sketch29.addConstraint(Sketcher.Constraint("DistanceY", 0, 3, -1, 1, Q("26.697561 mm")))
sketch29.addConstraint(Sketcher.Constraint("DistanceX", 0, 3, -1, 1, Q("19.396913 mm")))
pocket26 = body.newObject("PartDesign::Pocket", "Pocket025")
pocket26.Profile = sketch29
pocket26.Type = "UpToFirst"

# Sketch on XZ plane
sketch30 = body.newObject("Sketcher::SketchObject", "Sketch029")
sketch30.AttachmentSupport = (doc.getObject("XZ_Plane"), [""])
sketch30.MapMode = "FlatFace"
sketch30.AttachmentOffset = App.Placement(App.Vector(0, 0, 27.5), App.Rotation())
sketch30.addGeometry(Part.Circle(App.Vector(-26.7, -19.4, 0), App.Vector(0, 0, 1), 3), False)
sketch30.addConstraint(Sketcher.Constraint("Diameter", 0, Q("6 mm")))
sketch30.addConstraint(Sketcher.Constraint("DistanceX", 0, 3, -1, 1, Q("26.697561 mm")))
sketch30.addConstraint(Sketcher.Constraint("DistanceY", 0, 3, -1, 1, Q("19.396913 mm")))
pocket27 = body.newObject("PartDesign::Pocket", "Pocket026")
pocket27.Profile = sketch30
pocket27.Type = "UpToFirst"

# Sketch on XZ plane
sketch31 = body.newObject("Sketcher::SketchObject", "Sketch030")
sketch31.AttachmentSupport = (doc.getObject("XZ_Plane"), [""])
sketch31.MapMode = "FlatFace"
sketch31.AttachmentOffset = App.Placement(App.Vector(0, 0, 27.5), App.Rotation())
sketch31.addGeometry(Part.Circle(App.Vector(-31.4, -10.2, 0), App.Vector(0, 0, 1), 3), False)
sketch31.addConstraint(Sketcher.Constraint("Diameter", 0, Q("6 mm")))
sketch31.addConstraint(Sketcher.Constraint("DistanceY", 0, 3, -1, 1, Q("10.197561 mm")))
sketch31.addConstraint(Sketcher.Constraint("DistanceX", 0, 3, -1, 1, Q("31.384865 mm")))
pocket28 = body.newObject("PartDesign::Pocket", "Pocket027")
pocket28.Profile = sketch31
pocket28.Type = "UpToFirst"

# Sketch on XZ plane
sketch32 = body.newObject("Sketcher::SketchObject", "Sketch031")
sketch32.AttachmentSupport = (doc.getObject("XZ_Plane"), [""])
sketch32.MapMode = "FlatFace"
sketch32.AttachmentOffset = App.Placement(App.Vector(0, 0, 27.5), App.Rotation())
sketch32.addGeometry(Part.Circle(App.Vector(-33, 0, 0), App.Vector(0, 0, 1), 3), False)
sketch32.addConstraint(Sketcher.Constraint("PointOnObject", 0, 3, -1))
sketch32.addConstraint(Sketcher.Constraint("Diameter", 0, Q("6 mm")))
sketch32.addConstraint(Sketcher.Constraint("DistanceX", 0, 3, -1, 1, Q("33 mm")))
pocket29 = body.newObject("PartDesign::Pocket", "Pocket028")
pocket29.Profile = sketch32
pocket29.Type = "UpToFirst"

# Sketch on XZ plane
sketch33 = body.newObject("Sketcher::SketchObject", "Sketch032")
sketch33.AttachmentSupport = (doc.getObject("XZ_Plane"), [""])
sketch33.MapMode = "FlatFace"
sketch33.AttachmentOffset = App.Placement(App.Vector(0, 0, 27.5), App.Rotation())
sketch33.addGeometry(Part.Circle(App.Vector(-31.4, 10.2, 0), App.Vector(0, 0, 1), 3), False)
sketch33.addConstraint(Sketcher.Constraint("Diameter", 0, Q("6 mm")))
sketch33.addConstraint(Sketcher.Constraint("DistanceY", -1, 1, 0, 3, Q("10.197561 mm")))
sketch33.addConstraint(Sketcher.Constraint("DistanceX", 0, 3, -1, 1, Q("31.384865 mm")))
pocket30 = body.newObject("PartDesign::Pocket", "Pocket029")
pocket30.Profile = sketch33
pocket30.Type = "UpToFirst"

# Sketch on XZ plane
sketch34 = body.newObject("Sketcher::SketchObject", "Sketch033")
sketch34.AttachmentSupport = (doc.getObject("XZ_Plane"), [""])
sketch34.MapMode = "FlatFace"
sketch34.AttachmentOffset = App.Placement(App.Vector(0, 0, 27.5), App.Rotation())
sketch34.addGeometry(Part.Circle(App.Vector(-26.7, 19.4, 0), App.Vector(0, 0, 1), 3), False)
sketch34.addConstraint(Sketcher.Constraint("Diameter", 0, Q("6 mm")))
sketch34.addConstraint(Sketcher.Constraint("DistanceX", 0, 3, -1, 1, Q("26.697561 mm")))
sketch34.addConstraint(Sketcher.Constraint("DistanceY", -1, 1, 0, 3, Q("19.396913 mm")))
pocket31 = body.newObject("PartDesign::Pocket", "Pocket030")
pocket31.Profile = sketch34
pocket31.Type = "UpToFirst"

# Sketch on XZ plane
sketch35 = body.newObject("Sketcher::SketchObject", "Sketch034")
sketch35.AttachmentSupport = (doc.getObject("XZ_Plane"), [""])
sketch35.MapMode = "FlatFace"
sketch35.AttachmentOffset = App.Placement(App.Vector(0, 0, 27.5), App.Rotation())
sketch35.addGeometry(Part.Circle(App.Vector(-19.4, 26.7, 0), App.Vector(0, 0, 1), 3), False)
sketch35.addConstraint(Sketcher.Constraint("Diameter", 0, Q("6 mm")))
sketch35.addConstraint(Sketcher.Constraint("DistanceY", -1, 1, 0, 3, Q("26.697561 mm")))
sketch35.addConstraint(Sketcher.Constraint("DistanceX", 0, 3, -1, 1, Q("19.396913 mm")))
pocket32 = body.newObject("PartDesign::Pocket", "Pocket031")
pocket32.Profile = sketch35
pocket32.Type = "UpToFirst"

# Sketch on XZ plane
sketch36 = body.newObject("Sketcher::SketchObject", "Sketch035")
sketch36.AttachmentSupport = (doc.getObject("XZ_Plane"), [""])
sketch36.MapMode = "FlatFace"
sketch36.AttachmentOffset = App.Placement(App.Vector(0, 0, 27.5), App.Rotation())
sketch36.addGeometry(Part.Circle(App.Vector(-10.2, 31.4, 0), App.Vector(0, 0, 1), 3), False)
sketch36.addConstraint(Sketcher.Constraint("Diameter", 0, Q("6 mm")))
sketch36.addConstraint(Sketcher.Constraint("DistanceX", 0, 3, -1, 1, Q("10.197561 mm")))
sketch36.addConstraint(Sketcher.Constraint("DistanceY", -1, 1, 0, 3, Q("31.384865 mm")))
pocket33 = body.newObject("PartDesign::Pocket", "Pocket032")
pocket33.Profile = sketch36
pocket33.Type = "UpToFirst"

# Sketch on XZ plane
sketch37 = body.newObject("Sketcher::SketchObject", "Sketch036")
sketch37.AttachmentSupport = (doc.getObject("XZ_Plane"), [""])
sketch37.MapMode = "FlatFace"
sketch37.AttachmentOffset = App.Placement(App.Vector(0, 0, 27.5), App.Rotation())
sketch37.addGeometry(Part.Circle(App.Vector(0, 33, 0), App.Vector(0, 0, 1), 3), False)
sketch37.addConstraint(Sketcher.Constraint("PointOnObject", 0, 3, -2))
sketch37.addConstraint(Sketcher.Constraint("Diameter", 0, Q("6 mm")))
sketch37.addConstraint(Sketcher.Constraint("DistanceY", -1, 1, 0, 3, Q("33 mm")))
pocket34 = body.newObject("PartDesign::Pocket", "Pocket033")
pocket34.Profile = sketch37
pocket34.Type = "UpToFirst"

# Sketch on XZ plane
sketch38 = body.newObject("Sketcher::SketchObject", "Sketch037")
sketch38.AttachmentSupport = (doc.getObject("XZ_Plane"), [""])
sketch38.MapMode = "FlatFace"
sketch38.AttachmentOffset = App.Placement(App.Vector(0, 0, 27.5), App.Rotation())
sketch38.addGeometry(Part.Circle(App.Vector(10.2, 31.4, 0), App.Vector(0, 0, 1), 3), False)
sketch38.addConstraint(Sketcher.Constraint("Diameter", 0, Q("6 mm")))
sketch38.addConstraint(Sketcher.Constraint("DistanceX", -1, 1, 0, 3, Q("10.197561 mm")))
sketch38.addConstraint(Sketcher.Constraint("DistanceY", -1, 1, 0, 3, Q("31.384865 mm")))
pocket35 = body.newObject("PartDesign::Pocket", "Pocket034")
pocket35.Profile = sketch38
pocket35.Type = "UpToFirst"

# Sketch on XZ plane
sketch39 = body.newObject("Sketcher::SketchObject", "Sketch038")
sketch39.AttachmentSupport = (doc.getObject("XZ_Plane"), [""])
sketch39.MapMode = "FlatFace"
sketch39.AttachmentOffset = App.Placement(App.Vector(0, 0, 27.5), App.Rotation())
sketch39.addGeometry(Part.Circle(App.Vector(19.4, 26.7, 0), App.Vector(0, 0, 1), 3), False)
sketch39.addConstraint(Sketcher.Constraint("Diameter", 0, Q("6 mm")))
sketch39.addConstraint(Sketcher.Constraint("DistanceY", -1, 1, 0, 3, Q("26.697561 mm")))
sketch39.addConstraint(Sketcher.Constraint("DistanceX", -1, 1, 0, 3, Q("19.396913 mm")))
pocket36 = body.newObject("PartDesign::Pocket", "Pocket035")
pocket36.Profile = sketch39
pocket36.Type = "UpToFirst"

# Sketch on XZ plane
sketch40 = body.newObject("Sketcher::SketchObject", "Sketch039")
sketch40.AttachmentSupport = (doc.getObject("XZ_Plane"), [""])
sketch40.MapMode = "FlatFace"
sketch40.AttachmentOffset = App.Placement(App.Vector(0, 0, 27.5), App.Rotation())
sketch40.addGeometry(Part.Circle(App.Vector(26.7, 19.4, 0), App.Vector(0, 0, 1), 3), False)
sketch40.addConstraint(Sketcher.Constraint("Diameter", 0, Q("6 mm")))
sketch40.addConstraint(Sketcher.Constraint("DistanceX", -1, 1, 0, 3, Q("26.697561 mm")))
sketch40.addConstraint(Sketcher.Constraint("DistanceY", -1, 1, 0, 3, Q("19.396913 mm")))
pocket37 = body.newObject("PartDesign::Pocket", "Pocket036")
pocket37.Profile = sketch40
pocket37.Type = "UpToFirst"

# Sketch on XZ plane
sketch41 = body.newObject("Sketcher::SketchObject", "Sketch040")
sketch41.AttachmentSupport = (doc.getObject("XZ_Plane"), [""])
sketch41.MapMode = "FlatFace"
sketch41.AttachmentOffset = App.Placement(App.Vector(0, 0, 27.5), App.Rotation())
sketch41.addGeometry(Part.Circle(App.Vector(31.4, 10.2, 0), App.Vector(0, 0, 1), 3), False)
sketch41.addConstraint(Sketcher.Constraint("Diameter", 0, Q("6 mm")))
sketch41.addConstraint(Sketcher.Constraint("DistanceY", -1, 1, 0, 3, Q("10.197561 mm")))
sketch41.addConstraint(Sketcher.Constraint("DistanceX", -1, 1, 0, 3, Q("31.384865 mm")))
pocket38 = body.newObject("PartDesign::Pocket", "Pocket037")
pocket38.Profile = sketch41
pocket38.Type = "UpToFirst"

# Sketch on XZ plane
sketch42 = body.newObject("Sketcher::SketchObject", "Sketch041")
sketch42.AttachmentSupport = (doc.getObject("XZ_Plane"), [""])
sketch42.MapMode = "FlatFace"
sketch42.AttachmentOffset = App.Placement(App.Vector(0, 0, 27.5), App.Rotation())
sketch42.addGeometry(Part.Circle(App.Vector(33, 0, 0), App.Vector(0, 0, 1), 3), False)
sketch42.addConstraint(Sketcher.Constraint("PointOnObject", 0, 3, -1))
sketch42.addConstraint(Sketcher.Constraint("Diameter", 0, Q("6 mm")))
sketch42.addConstraint(Sketcher.Constraint("DistanceX", -1, 1, 0, 3, Q("33 mm")))
pocket39 = body.newObject("PartDesign::Pocket", "Pocket038")
pocket39.Profile = sketch42
pocket39.Type = "UpToFirst"

# Sketch on XZ plane
sketch43 = body.newObject("Sketcher::SketchObject", "Sketch042")
sketch43.AttachmentSupport = (doc.getObject("XZ_Plane"), [""])
sketch43.MapMode = "FlatFace"
sketch43.AttachmentOffset = App.Placement(App.Vector(0, 0, 27.5), App.Rotation())
sketch43.addGeometry(Part.Circle(App.Vector(31.4, -10.2, 0), App.Vector(0, 0, 1), 3), False)
sketch43.addConstraint(Sketcher.Constraint("Diameter", 0, Q("6 mm")))
sketch43.addConstraint(Sketcher.Constraint("DistanceY", 0, 3, -1, 1, Q("10.197561 mm")))
sketch43.addConstraint(Sketcher.Constraint("DistanceX", -1, 1, 0, 3, Q("31.384865 mm")))
pocket40 = body.newObject("PartDesign::Pocket", "Pocket039")
pocket40.Profile = sketch43
pocket40.Type = "UpToFirst"

# Sketch on XZ plane
sketch44 = body.newObject("Sketcher::SketchObject", "Sketch043")
sketch44.AttachmentSupport = (doc.getObject("XZ_Plane"), [""])
sketch44.MapMode = "FlatFace"
sketch44.AttachmentOffset = App.Placement(App.Vector(0, 0, 27.5), App.Rotation())
sketch44.addGeometry(Part.Circle(App.Vector(0, 41.5, 0), App.Vector(0, 0, 1), 2), False)
sketch44.addGeometry(Part.Circle(App.Vector(35.9, 20.8, 0), App.Vector(0, 0, 1), 2), False)
sketch44.addGeometry(Part.Circle(App.Vector(35.9, -20.8, 0), App.Vector(0, 0, 1), 2), False)
sketch44.addGeometry(Part.Circle(App.Vector(0, -41.5, 0), App.Vector(0, 0, 1), 2), False)
sketch44.addGeometry(Part.Circle(App.Vector(-35.9, -20.8, 0), App.Vector(0, 0, 1), 2), False)
sketch44.addGeometry(Part.Circle(App.Vector(-35.9, 20.8, 0), App.Vector(0, 0, 1), 2), False)
sketch44.addConstraint(Sketcher.Constraint("Equal", 0, 1))
sketch44.addConstraint(Sketcher.Constraint("Equal", 1, 2))
sketch44.addConstraint(Sketcher.Constraint("Equal", 2, 3))
sketch44.addConstraint(Sketcher.Constraint("Equal", 3, 4))
sketch44.addConstraint(Sketcher.Constraint("Equal", 4, 5))
sketch44.addConstraint(Sketcher.Constraint("Symmetric", 0, 3, 3, 3, -1, 1))
sketch44.addConstraint(Sketcher.Constraint("Symmetric", 1, 3, 4, 3, -1, 1))
sketch44.addConstraint(Sketcher.Constraint("Symmetric", 2, 3, 5, 3, -1, 1))
sketch44.addConstraint(Sketcher.Constraint("Symmetric", 2, 3, 4, 3, -2))
sketch44.addConstraint(Sketcher.Constraint("PointOnObject", 0, 3, -2))
sketch44.addConstraint(Sketcher.Constraint("Diameter", 0, Q("4 mm")))
sketch44.addConstraint(Sketcher.Constraint("DistanceY", 3, 3, 0, 3, Q("83 mm")))
sketch44.addConstraint(Sketcher.Constraint("DistanceY", 2, 3, 1, 3, Q("41.5 mm")))
sketch44.addConstraint(Sketcher.Constraint("DistanceX", 4, 3, 2, 3, Q("71.880109 mm")))
pocket41 = body.newObject("PartDesign::Pocket", "Pocket040")
pocket41.Profile = sketch44
pocket41.Type = "ThroughAll"

doc.recompute()
